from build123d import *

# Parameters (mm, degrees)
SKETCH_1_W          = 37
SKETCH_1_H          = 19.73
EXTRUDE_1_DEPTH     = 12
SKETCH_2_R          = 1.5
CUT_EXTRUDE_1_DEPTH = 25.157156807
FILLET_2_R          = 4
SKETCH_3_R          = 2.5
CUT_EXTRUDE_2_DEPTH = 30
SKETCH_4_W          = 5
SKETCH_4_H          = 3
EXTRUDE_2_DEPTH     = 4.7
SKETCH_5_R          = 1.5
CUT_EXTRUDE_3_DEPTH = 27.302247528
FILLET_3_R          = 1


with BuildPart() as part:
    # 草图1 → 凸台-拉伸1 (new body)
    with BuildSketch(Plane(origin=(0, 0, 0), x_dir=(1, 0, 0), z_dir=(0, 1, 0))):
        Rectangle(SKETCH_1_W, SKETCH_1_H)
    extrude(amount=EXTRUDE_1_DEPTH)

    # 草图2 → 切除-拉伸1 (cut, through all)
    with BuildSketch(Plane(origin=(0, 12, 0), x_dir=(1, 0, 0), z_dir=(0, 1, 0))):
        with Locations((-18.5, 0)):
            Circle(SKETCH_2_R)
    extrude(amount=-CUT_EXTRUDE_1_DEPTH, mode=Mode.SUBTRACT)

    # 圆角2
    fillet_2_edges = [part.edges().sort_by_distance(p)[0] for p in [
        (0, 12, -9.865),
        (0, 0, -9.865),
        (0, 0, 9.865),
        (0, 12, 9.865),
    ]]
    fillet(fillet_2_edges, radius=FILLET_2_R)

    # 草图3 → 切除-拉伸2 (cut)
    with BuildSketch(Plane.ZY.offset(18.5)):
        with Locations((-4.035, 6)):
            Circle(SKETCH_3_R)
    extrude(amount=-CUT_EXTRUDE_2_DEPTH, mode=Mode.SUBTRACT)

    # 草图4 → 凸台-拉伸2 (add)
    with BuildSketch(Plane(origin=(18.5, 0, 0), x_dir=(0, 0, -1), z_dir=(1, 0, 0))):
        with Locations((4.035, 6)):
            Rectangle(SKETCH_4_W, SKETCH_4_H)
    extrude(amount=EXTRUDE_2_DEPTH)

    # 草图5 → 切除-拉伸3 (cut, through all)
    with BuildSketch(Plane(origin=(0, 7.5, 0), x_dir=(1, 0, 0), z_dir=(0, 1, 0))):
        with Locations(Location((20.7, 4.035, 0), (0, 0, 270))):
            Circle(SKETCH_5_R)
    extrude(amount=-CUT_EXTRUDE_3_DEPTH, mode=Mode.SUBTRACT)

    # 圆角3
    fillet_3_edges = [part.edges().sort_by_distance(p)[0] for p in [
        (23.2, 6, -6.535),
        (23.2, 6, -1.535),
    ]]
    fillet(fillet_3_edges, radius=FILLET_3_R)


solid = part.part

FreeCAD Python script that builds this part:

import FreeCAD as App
import Part
import Sketcher
Q = App.Units.Quantity


def edges_at(feature, points):
    """Names of the edges that pass closest to the given points."""
    edges = feature.Shape.Edges
    near = lambda p: min(range(len(edges)), key=lambda i: edges[i].distToShape(Part.Vertex(*p))[0])
    return sorted({f"Edge{near(p) + 1}" for p in points})


def add_polygon(sketch, points):
    """Adds a closed chain of lines whose ends are joined by coincident constraints."""
    first, n = sketch.GeometryCount, len(points)
    for a, b in zip(points, points[1:] + points[:1]):
        sketch.addGeometry(Part.LineSegment(App.Vector(*a, 0), App.Vector(*b, 0)), False)
    for i in range(n):
        sketch.addConstraint(Sketcher.Constraint("Coincident", first + i, 2, first + (i + 1) % n, 1))

doc = App.newDocument("Part")
body = doc.addObject("PartDesign::Body", "Body")

# Sketch on XZ plane
sketch1 = body.newObject("Sketcher::SketchObject", "Sketch")
sketch1.AttachmentSupport = (doc.getObject("XZ_Plane"), [""])
sketch1.MapMode = "FlatFace"
add_polygon(sketch1, [(-18, -10), (-18, 10), (18, 10), (18, -10)])  # lines 0-3
sketch1.addConstraint([
    Sketcher.Constraint("Vertical", 0),
    Sketcher.Constraint("Horizontal", 1),
    Sketcher.Constraint("Vertical", 2),
    Sketcher.Constraint("Horizontal", 3),
    Sketcher.Constraint("Symmetric", 0, 2, 2, 2, -1, 1),
    Sketcher.Constraint("DistanceX", 1, 1, 1, 2, Q("37 mm")),
    Sketcher.Constraint("DistanceY", 0, 1, 0, 2, Q("19.73 mm")),
])
pad1 = body.newObject("PartDesign::Pad", "Pad")
pad1.Profile = sketch1
pad1.Length = 12
pad1.Reversed = True

# Sketch on XZ plane
sketch2 = body.newObject("Sketcher::SketchObject", "Sketch001")
sketch2.AttachmentSupport = (doc.getObject("XZ_Plane"), [""])
sketch2.MapMode = "FlatFace"
sketch2.AttachmentOffset = App.Placement(App.Vector(0, 0, -12), App.Rotation())
sketch2.addGeometry(Part.Circle(App.Vector(-18.5, 0, 0), App.Vector(0, 0, 1), 1.5), False)
sketch2.addConstraint([
    Sketcher.Constraint("PointOnObject", 0, 3, -1),
    Sketcher.Constraint("Diameter", 0, Q("3 mm")),
    Sketcher.Constraint("DistanceX", 0, 3, -1, 1, Q("18.5 mm")),
])
pocket1 = body.newObject("PartDesign::Pocket", "Pocket")
pocket1.Profile = sketch2
pocket1.Type = "ThroughAll"
pocket1.Reversed = True
doc.recompute()

fillet = body.newObject("PartDesign::Fillet", "Fillet")
fillet.Base = (pocket1, edges_at(pocket1, [
    (0, 12, -9.865),
    (0, 0, -9.865),
    (0, 0, 9.865),
    (0, 12, 9.865),
]))
fillet.Radius = 4

# Sketch on YZ plane
sketch3 = body.newObject("Sketcher::SketchObject", "Sketch002")
sketch3.AttachmentSupport = (doc.getObject("YZ_Plane"), [""])
sketch3.MapMode = "FlatFace"
sketch3.AttachmentOffset = App.Placement(App.Vector(0, 0, -18.5), App.Rotation())
sketch3.addGeometry(Part.Circle(App.Vector(6, -4, 0), App.Vector(0, 0, 1), 2.5), False)
sketch3.addConstraint([
    Sketcher.Constraint("Diameter", 0, Q("5 mm")),
    Sketcher.Constraint("DistanceX", -1, 1, 0, 3, Q("6 mm")),
    Sketcher.Constraint("DistanceY", 0, 3, -1, 1, Q("4.035 mm")),
])
pocket2 = body.newObject("PartDesign::Pocket", "Pocket001")
pocket2.Profile = sketch3
pocket2.Length = 30
pocket2.Reversed = True

# Sketch on YZ plane
sketch4 = body.newObject("Sketcher::SketchObject", "Sketch003")
sketch4.AttachmentSupport = (doc.getObject("YZ_Plane"), [""])
sketch4.MapMode = "FlatFace"
sketch4.AttachmentOffset = App.Placement(App.Vector(0, 0, 18.5), App.Rotation())
add_polygon(sketch4, [(7.5, -1.5), (4.5, -1.5), (4.5, -6.5), (7.5, -6.5)])  # lines 0-3
sketch4.addConstraint([
    Sketcher.Constraint("Horizontal", 0),
    Sketcher.Constraint("Vertical", 1),
    Sketcher.Constraint("Horizontal", 2),
    Sketcher.Constraint("Vertical", 3),
    Sketcher.Constraint("DistanceX", 0, 2, 0, 1, Q("3 mm")),
    Sketcher.Constraint("DistanceY", 1, 2, 1, 1, Q("5 mm")),
    Sketcher.Constraint("DistanceX", -1, 1, 0, 2, Q("4.5 mm")),
    Sketcher.Constraint("DistanceY", 0, 2, -1, 1, Q("1.535 mm")),
])
pad2 = body.newObject("PartDesign::Pad", "Pad001")
pad2.Profile = sketch4
pad2.Length = 4.7

# Sketch on XZ plane
sketch5 = body.newObject("Sketcher::SketchObject", "Sketch004")
sketch5.AttachmentSupport = (doc.getObject("XZ_Plane"), [""])
sketch5.MapMode = "FlatFace"
sketch5.AttachmentOffset = App.Placement(App.Vector(0, 0, -7.5), App.Rotation())
sketch5.addGeometry(Part.Circle(App.Vector(20.7, -4, 0), App.Vector(0, 0, 1), 1.5), False)
sketch5.addConstraint([
    Sketcher.Constraint("Diameter", 0, Q("3 mm")),
    Sketcher.Constraint("DistanceX", -1, 1, 0, 3, Q("20.7 mm")),
    Sketcher.Constraint("DistanceY", 0, 3, -1, 1, Q("4.035 mm")),
])
pocket3 = body.newObject("PartDesign::Pocket", "Pocket002")
pocket3.Profile = sketch5
pocket3.Type = "ThroughAll"
pocket3.Reversed = True
doc.recompute()

fillet2 = body.newObject("PartDesign::Fillet", "Fillet001")
fillet2.Base = (pocket3, edges_at(pocket3, [(23.2, 6, -6.535), (23.2, 6, -1.535)]))
fillet2.Radius = 1

doc.recompute()
